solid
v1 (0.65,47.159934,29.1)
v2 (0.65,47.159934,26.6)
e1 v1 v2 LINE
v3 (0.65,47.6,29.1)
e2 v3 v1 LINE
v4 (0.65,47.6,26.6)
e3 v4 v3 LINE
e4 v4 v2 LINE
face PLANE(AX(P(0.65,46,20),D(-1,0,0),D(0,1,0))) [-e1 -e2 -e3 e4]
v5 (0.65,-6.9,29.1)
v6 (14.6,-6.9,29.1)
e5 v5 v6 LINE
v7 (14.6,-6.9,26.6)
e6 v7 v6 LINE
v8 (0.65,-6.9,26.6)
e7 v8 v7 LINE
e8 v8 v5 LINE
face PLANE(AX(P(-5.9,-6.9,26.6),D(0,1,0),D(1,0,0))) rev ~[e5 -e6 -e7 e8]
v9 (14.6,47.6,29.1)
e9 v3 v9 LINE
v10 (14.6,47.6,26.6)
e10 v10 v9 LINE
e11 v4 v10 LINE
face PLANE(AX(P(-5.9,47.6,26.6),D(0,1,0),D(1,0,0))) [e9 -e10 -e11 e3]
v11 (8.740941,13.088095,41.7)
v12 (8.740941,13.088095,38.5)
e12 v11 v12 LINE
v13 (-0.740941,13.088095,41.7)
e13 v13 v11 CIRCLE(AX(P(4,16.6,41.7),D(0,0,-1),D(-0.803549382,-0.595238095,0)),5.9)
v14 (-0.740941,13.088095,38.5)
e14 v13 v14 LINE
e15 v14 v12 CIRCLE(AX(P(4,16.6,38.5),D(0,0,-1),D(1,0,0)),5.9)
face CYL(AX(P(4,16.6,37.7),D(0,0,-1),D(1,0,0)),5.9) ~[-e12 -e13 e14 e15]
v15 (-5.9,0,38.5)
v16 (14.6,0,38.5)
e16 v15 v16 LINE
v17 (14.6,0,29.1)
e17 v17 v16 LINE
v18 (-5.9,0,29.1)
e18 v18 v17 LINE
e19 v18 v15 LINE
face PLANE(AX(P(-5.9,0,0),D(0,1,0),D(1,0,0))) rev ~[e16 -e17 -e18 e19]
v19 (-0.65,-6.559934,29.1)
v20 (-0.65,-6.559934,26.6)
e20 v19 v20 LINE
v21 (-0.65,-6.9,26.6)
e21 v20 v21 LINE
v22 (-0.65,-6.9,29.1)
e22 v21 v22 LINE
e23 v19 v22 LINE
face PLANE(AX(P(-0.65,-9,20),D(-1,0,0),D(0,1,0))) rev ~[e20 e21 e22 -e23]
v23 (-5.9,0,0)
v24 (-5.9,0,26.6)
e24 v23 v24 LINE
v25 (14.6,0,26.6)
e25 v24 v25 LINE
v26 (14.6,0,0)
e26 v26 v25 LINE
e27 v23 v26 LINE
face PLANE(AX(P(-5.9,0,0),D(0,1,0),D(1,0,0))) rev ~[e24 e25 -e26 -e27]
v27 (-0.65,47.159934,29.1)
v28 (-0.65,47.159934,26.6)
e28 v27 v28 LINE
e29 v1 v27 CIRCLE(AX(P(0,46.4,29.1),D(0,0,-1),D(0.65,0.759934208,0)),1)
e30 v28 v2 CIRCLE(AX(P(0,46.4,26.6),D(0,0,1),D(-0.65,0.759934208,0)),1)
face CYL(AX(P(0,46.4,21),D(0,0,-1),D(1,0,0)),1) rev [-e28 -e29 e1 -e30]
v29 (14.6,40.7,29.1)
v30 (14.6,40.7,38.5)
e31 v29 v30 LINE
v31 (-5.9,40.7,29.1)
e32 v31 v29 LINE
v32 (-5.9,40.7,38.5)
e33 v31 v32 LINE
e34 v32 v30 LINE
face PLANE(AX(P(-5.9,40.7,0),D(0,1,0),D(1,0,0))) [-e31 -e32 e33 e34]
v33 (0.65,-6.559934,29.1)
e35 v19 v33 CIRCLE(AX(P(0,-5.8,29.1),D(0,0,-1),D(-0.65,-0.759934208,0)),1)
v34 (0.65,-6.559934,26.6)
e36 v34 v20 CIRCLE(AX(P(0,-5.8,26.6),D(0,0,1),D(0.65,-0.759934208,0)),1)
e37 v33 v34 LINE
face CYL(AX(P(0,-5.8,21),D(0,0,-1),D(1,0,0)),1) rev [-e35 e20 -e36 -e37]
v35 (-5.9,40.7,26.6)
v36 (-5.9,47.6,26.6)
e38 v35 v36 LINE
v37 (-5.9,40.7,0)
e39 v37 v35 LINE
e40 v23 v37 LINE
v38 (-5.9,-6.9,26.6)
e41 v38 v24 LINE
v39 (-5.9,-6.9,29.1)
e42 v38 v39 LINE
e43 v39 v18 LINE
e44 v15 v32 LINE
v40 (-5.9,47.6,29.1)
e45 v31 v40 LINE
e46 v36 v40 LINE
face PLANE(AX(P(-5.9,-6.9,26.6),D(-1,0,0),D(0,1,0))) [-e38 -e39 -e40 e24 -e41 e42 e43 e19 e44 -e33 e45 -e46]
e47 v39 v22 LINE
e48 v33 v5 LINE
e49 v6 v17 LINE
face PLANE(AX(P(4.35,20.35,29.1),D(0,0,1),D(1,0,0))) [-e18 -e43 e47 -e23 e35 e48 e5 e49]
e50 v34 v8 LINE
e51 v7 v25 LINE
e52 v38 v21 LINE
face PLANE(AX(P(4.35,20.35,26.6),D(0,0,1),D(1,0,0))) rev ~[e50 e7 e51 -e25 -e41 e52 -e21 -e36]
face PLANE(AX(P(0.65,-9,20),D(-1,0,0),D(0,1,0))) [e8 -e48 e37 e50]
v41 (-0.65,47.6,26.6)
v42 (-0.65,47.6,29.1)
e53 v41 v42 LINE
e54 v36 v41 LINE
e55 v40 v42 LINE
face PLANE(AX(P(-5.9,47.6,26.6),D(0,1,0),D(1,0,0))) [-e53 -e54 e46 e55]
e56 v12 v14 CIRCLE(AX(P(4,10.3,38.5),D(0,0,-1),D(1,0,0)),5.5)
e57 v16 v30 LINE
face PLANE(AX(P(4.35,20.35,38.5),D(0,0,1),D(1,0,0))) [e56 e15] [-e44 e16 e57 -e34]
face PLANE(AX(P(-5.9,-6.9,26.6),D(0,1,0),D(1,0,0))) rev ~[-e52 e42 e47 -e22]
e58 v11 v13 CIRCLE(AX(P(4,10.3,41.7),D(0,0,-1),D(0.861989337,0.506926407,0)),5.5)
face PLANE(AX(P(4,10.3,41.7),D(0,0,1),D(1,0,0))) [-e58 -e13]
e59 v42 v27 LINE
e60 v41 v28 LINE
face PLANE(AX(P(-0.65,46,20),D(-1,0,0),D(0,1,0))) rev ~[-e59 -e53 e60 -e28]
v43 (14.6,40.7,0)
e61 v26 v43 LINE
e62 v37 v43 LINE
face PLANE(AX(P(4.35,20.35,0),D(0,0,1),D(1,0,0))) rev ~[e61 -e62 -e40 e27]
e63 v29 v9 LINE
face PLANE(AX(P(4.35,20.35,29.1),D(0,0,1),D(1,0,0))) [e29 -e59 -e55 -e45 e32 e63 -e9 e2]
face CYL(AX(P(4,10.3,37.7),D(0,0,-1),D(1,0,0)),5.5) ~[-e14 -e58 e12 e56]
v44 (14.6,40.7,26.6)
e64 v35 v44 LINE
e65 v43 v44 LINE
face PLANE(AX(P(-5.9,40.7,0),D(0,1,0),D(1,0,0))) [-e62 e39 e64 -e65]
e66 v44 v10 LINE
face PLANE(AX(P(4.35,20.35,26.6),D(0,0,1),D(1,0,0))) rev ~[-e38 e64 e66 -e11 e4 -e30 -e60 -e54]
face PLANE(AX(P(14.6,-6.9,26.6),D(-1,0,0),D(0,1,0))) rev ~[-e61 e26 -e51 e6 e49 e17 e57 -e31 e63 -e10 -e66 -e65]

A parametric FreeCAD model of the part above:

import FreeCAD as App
import Part
import Sketcher
Q = App.Units.Quantity

doc = App.newDocument("Part")
body = doc.addObject("PartDesign::Body", "Body")

# Sketch on XY plane
sketch1 = body.newObject("Sketcher::SketchObject", "Sketch")
sketch1.AttachmentSupport = (doc.getObject("XY_Plane"), [""])
sketch1.MapMode = "FlatFace"
sketch1.AttachmentOffset = App.Placement(App.Vector(0, 0, 20), App.Rotation())
sketch1.addGeometry([
    Part.LineSegment(App.Vector(5.2, 49.3, 0), App.Vector(5.2, 46, 0)),
    Part.LineSegment(App.Vector(5.2, 46, 0), App.Vector(6.5, 46, 0)),
    Part.LineSegment(App.Vector(6.5, 46, 0), App.Vector(6.5, 49.3, 0)),
    Part.LineSegment(App.Vector(6.5, 49.3, 0), App.Vector(5.2, 49.3, 0)),
], False)
sketch1.addConstraint([
    Sketcher.Constraint("Coincident", 0, 2, 1, 1),
    Sketcher.Constraint("Coincident", 1, 2, 2, 1),
    Sketcher.Constraint("Coincident", 2, 2, 3, 1),
    Sketcher.Constraint("Coincident", 3, 2, 0, 1),
    Sketcher.Constraint("Vertical", 0),
    Sketcher.Constraint("Horizontal", 1),
    Sketcher.Constraint("Vertical", 2),
    Sketcher.Constraint("Horizontal", 3),
    Sketcher.Constraint("DistanceX", 1, 1, 1, 2, Q("1.3 mm")),
    Sketcher.Constraint("DistanceY", 0, 2, 0, 1, Q("3.3 mm")),
    Sketcher.Constraint("DistanceY", -1, 1, 0, 2, Q("46 mm")),
    Sketcher.Constraint("DistanceX", -1, 1, 0, 2, Q("5.25 mm")),
])
pad1 = body.newObject("PartDesign::Pad", "Pad")
pad1.Profile = sketch1
pad1.Length = 10
body2 = doc.addObject("PartDesign::Body", "Body001")
body2.AllowCompound = True

# Sketch on XY plane
sketch2 = body2.newObject("Sketcher::SketchObject", "Sketch001")
sketch2.AttachmentSupport = (doc.getObject("XY_Plane001"), [""])
sketch2.MapMode = "FlatFace"
sketch2.AttachmentOffset = App.Placement(App.Vector(0, 0, 20), App.Rotation())
sketch2.addGeometry([
    Part.LineSegment(App.Vector(5.2, -5.7, 0), App.Vector(5.2, -9, 0)),
    Part.LineSegment(App.Vector(5.2, -9, 0), App.Vector(6.5, -9, 0)),
    Part.LineSegment(App.Vector(6.5, -9, 0), App.Vector(6.5, -5.7, 0)),
    Part.LineSegment(App.Vector(6.5, -5.7, 0), App.Vector(5.2, -5.7, 0)),
], False)
sketch2.addConstraint([
    Sketcher.Constraint("Coincident", 0, 2, 1, 1),
    Sketcher.Constraint("Coincident", 1, 2, 2, 1),
    Sketcher.Constraint("Coincident", 2, 2, 3, 1),
    Sketcher.Constraint("Coincident", 3, 2, 0, 1),
    Sketcher.Constraint("Vertical", 0),
    Sketcher.Constraint("Horizontal", 1),
    Sketcher.Constraint("Vertical", 2),
    Sketcher.Constraint("Horizontal", 3),
    Sketcher.Constraint("DistanceX", 1, 1, 1, 2, Q("1.3 mm")),
    Sketcher.Constraint("DistanceY", 0, 2, 0, 1, Q("3.3 mm")),
    Sketcher.Constraint("DistanceY", 0, 2, -1, 1, Q("9 mm")),
    Sketcher.Constraint("DistanceX", -1, 1, 0, 2, Q("5.25 mm")),
])
pad2 = body2.newObject("PartDesign::Pad", "Pad001")
pad2.Profile = sketch2
pad2.Length = 10
doc.recompute()

boolean = body2.newObject("PartDesign::Boolean", "Boolean")
boolean.Type = "Fuse"
boolean.addObjects([body])
body3 = doc.addObject("PartDesign::Body", "Body002")

# Sketch on XY plane
sketch3 = body3.newObject("Sketcher::SketchObject", "Sketch002")
sketch3.AttachmentSupport = (doc.getObject("XY_Plane002"), [""])
sketch3.MapMode = "FlatFace"
sketch3.AttachmentOffset = App.Placement(App.Vector(0, 0, 21), App.Rotation())
sketch3.addGeometry(Part.Circle(App.Vector(5.9, 46.4, 0), App.Vector(0, 0, 1), 1), False)
sketch3.addConstraint([
    Sketcher.Constraint("Diameter", 0, Q("2 mm")),
    Sketcher.Constraint("DistanceX", -1, 1, 0, 3, Q("5.9 mm")),
    Sketcher.Constraint("DistanceY", -1, 1, 0, 3, Q("46.4 mm")),
])
pad3 = body3.newObject("PartDesign::Pad", "Pad002")
pad3.Profile = sketch3
pad3.Length = 10
body4 = doc.addObject("PartDesign::Body", "Body003")
body4.AllowCompound = True

# Sketch on XY plane
sketch4 = body4.newObject("Sketcher::SketchObject", "Sketch003")
sketch4.AttachmentSupport = (doc.getObject("XY_Plane003"), [""])
sketch4.MapMode = "FlatFace"
sketch4.AttachmentOffset = App.Placement(App.Vector(0, 0, 21), App.Rotation())
sketch4.addGeometry(Part.Circle(App.Vector(5.9, -5.8, 0), App.Vector(0, 0, 1), 1), False)
sketch4.addConstraint([
    Sketcher.Constraint("Diameter", 0, Q("2 mm")),
    Sketcher.Constraint("DistanceX", -1, 1, 0, 3, Q("5.9 mm")),
    Sketcher.Constraint("DistanceY", 0, 3, -1, 1, Q("5.8 mm")),
])
pad4 = body4.newObject("PartDesign::Pad", "Pad003")
pad4.Profile = sketch4
pad4.Length = 10
doc.recompute()

boolean2 = body4.newObject("PartDesign::Boolean", "Boolean001")
boolean2.Type = "Fuse"
boolean2.addObjects([body3])
doc.recompute()

boolean3 = body4.newObject("PartDesign::Boolean", "Boolean002")
boolean3.Type = "Fuse"
boolean3.addObjects([body2])
body5 = doc.addObject("PartDesign::Body", "Body004")

# Sketch on XY plane
sketch5 = body5.newObject("Sketcher::SketchObject", "Sketch004")
sketch5.AttachmentSupport = (doc.getObject("XY_Plane004"), [""])
sketch5.MapMode = "FlatFace"
sketch5.AttachmentOffset = App.Placement(App.Vector(0, 0, 37.7), App.Rotation())
sketch5.addGeometry(Part.Circle(App.Vector(10, 10, 0), App.Vector(0, 0, 1), 6), False)
sketch5.addConstraint([
    Sketcher.Constraint("Diameter", 0, Q("11 mm")),
    Sketcher.Constraint("DistanceX", -1, 1, 0, 3, Q("9.9 mm")),
    Sketcher.Constraint("DistanceY", -1, 1, 0, 3, Q("10.3 mm")),
])
pad5 = body5.newObject("PartDesign::Pad", "Pad004")
pad5.Profile = sketch5
pad5.Length = 4
body6 = doc.addObject("PartDesign::Body", "Body005")

# Sketch on XY plane
sketch6 = body6.newObject("Sketcher::SketchObject", "Sketch005")
sketch6.AttachmentSupport = (doc.getObject("XY_Plane005"), [""])
sketch6.MapMode = "FlatFace"
sketch6.AttachmentOffset = App.Placement(App.Vector(0, 0, 37.7), App.Rotation())
sketch6.addGeometry(Part.Circle(App.Vector(10, 17, 0), App.Vector(0, 0, 1), 6), False)
sketch6.addConstraint([
    Sketcher.Constraint("Diameter", 0, Q("11.8 mm")),
    Sketcher.Constraint("DistanceX", -1, 1, 0, 3, Q("9.9 mm")),
    Sketcher.Constraint("DistanceY", -1, 1, 0, 3, Q("16.6 mm")),
])
pad6 = body6.newObject("PartDesign::Pad", "Pad005")
pad6.Profile = sketch6
pad6.Length = 4
doc.recompute()

boolean4 = body6.newObject("PartDesign::Boolean", "Boolean003")
boolean4.Type = "Fuse"
boolean4.addObjects([body5])
body7 = doc.addObject("PartDesign::Body", "Body006")

# Sketch on XY plane
sketch7 = body7.newObject("Sketcher::SketchObject", "Sketch006")
sketch7.AttachmentSupport = (doc.getObject("XY_Plane006"), [""])
sketch7.MapMode = "FlatFace"
sketch7.AttachmentOffset = App.Placement(App.Vector(0, 0, 26.6), App.Rotation())
sketch7.addGeometry([
    Part.LineSegment(App.Vector(0, 48, 0), App.Vector(0, -7, 0)),
    Part.LineSegment(App.Vector(0, -7, 0), App.Vector(20, -7, 0)),
    Part.LineSegment(App.Vector(20, -7, 0), App.Vector(20, 48, 0)),
    Part.LineSegment(App.Vector(20, 48, 0), App.Vector(0, 48, 0)),
], False)
sketch7.addConstraint([
    Sketcher.Constraint("Coincident", 0, 2, 1, 1),
    Sketcher.Constraint("Coincident", 1, 2, 2, 1),
    Sketcher.Constraint("Coincident", 2, 2, 3, 1),
    Sketcher.Constraint("Coincident", 3, 2, 0, 1),
    Sketcher.Constraint("Vertical", 0),
    Sketcher.Constraint("Horizontal", 1),
    Sketcher.Constraint("Vertical", 2),
    Sketcher.Constraint("Horizontal", 3),
    Sketcher.Constraint("PointOnObject", 0, 2, -2),
    Sketcher.Constraint("DistanceX", 1, 1, 1, 2, Q("20.5 mm")),
    Sketcher.Constraint("DistanceY", 0, 2, 0, 1, Q("54.5 mm")),
    Sketcher.Constraint("DistanceY", 0, 2, -1, 1, Q("6.9 mm")),
])
pad7 = body7.newObject("PartDesign::Pad", "Pad006")
pad7.Profile = sketch7
pad7.Length = 2.5
body8 = doc.addObject("PartDesign::Body", "Body007")

# Sketch on XY plane
sketch8 = body8.newObject("Sketcher::SketchObject", "Sketch007")
sketch8.AttachmentSupport = (doc.getObject("XY_Plane007"), [""])
sketch8.MapMode = "FlatFace"
sketch8.addGeometry([
    Part.LineSegment(App.Vector(0, 41, 0), App.Vector(0, 0, 0)),
    Part.LineSegment(App.Vector(0, 0, 0), App.Vector(20, 0, 0)),
    Part.LineSegment(App.Vector(20, 0, 0), App.Vector(20, 41, 0)),
    Part.LineSegment(App.Vector(20, 41, 0), App.Vector(0, 41, 0)),
], False)
sketch8.addConstraint([
    Sketcher.Constraint("Coincident", 0, 2, 1, 1),
    Sketcher.Constraint("Coincident", 1, 2, 2, 1),
    Sketcher.Constraint("Coincident", 2, 2, 3, 1),
    Sketcher.Constraint("Coincident", 3, 2, 0, 1),
    Sketcher.Constraint("Vertical", 0),
    Sketcher.Constraint("Horizontal", 1),
    Sketcher.Constraint("Vertical", 2),
    Sketcher.Constraint("Horizontal", 3),
    Sketcher.Constraint("Coincident", 0, 2, -1, 1),
    Sketcher.Constraint("DistanceX", 1, 1, 1, 2, Q("20.5 mm")),
    Sketcher.Constraint("DistanceY", 0, 2, 0, 1, Q("40.7 mm")),
])
pad8 = body8.newObject("PartDesign::Pad", "Pad007")
pad8.Profile = sketch8
pad8.Length = 38.5
doc.recompute()

boolean5 = body8.newObject("PartDesign::Boolean", "Boolean004")
boolean5.Type = "Fuse"
boolean5.addObjects([body7])
doc.recompute()

boolean6 = body8.newObject("PartDesign::Boolean", "Boolean005")
boolean6.Type = "Fuse"
boolean6.addObjects([body6])
doc.recompute()

boolean7 = body8.newObject("PartDesign::Boolean", "Boolean006")
boolean7.Type = "Cut"
boolean7.addObjects([body4])
body9 = doc.addObject("PartDesign::Body", "Body008")
doc.recompute()

body8.Placement = App.Placement(App.Vector(-5.9, 0, 0), App.Rotation(App.Vector(0, 0, 1), 0))
boolean8 = body9.newObject("PartDesign::Boolean", "Boolean007")
boolean8.Type = "Fuse"
boolean8.addObjects([body8])

doc.recompute()
